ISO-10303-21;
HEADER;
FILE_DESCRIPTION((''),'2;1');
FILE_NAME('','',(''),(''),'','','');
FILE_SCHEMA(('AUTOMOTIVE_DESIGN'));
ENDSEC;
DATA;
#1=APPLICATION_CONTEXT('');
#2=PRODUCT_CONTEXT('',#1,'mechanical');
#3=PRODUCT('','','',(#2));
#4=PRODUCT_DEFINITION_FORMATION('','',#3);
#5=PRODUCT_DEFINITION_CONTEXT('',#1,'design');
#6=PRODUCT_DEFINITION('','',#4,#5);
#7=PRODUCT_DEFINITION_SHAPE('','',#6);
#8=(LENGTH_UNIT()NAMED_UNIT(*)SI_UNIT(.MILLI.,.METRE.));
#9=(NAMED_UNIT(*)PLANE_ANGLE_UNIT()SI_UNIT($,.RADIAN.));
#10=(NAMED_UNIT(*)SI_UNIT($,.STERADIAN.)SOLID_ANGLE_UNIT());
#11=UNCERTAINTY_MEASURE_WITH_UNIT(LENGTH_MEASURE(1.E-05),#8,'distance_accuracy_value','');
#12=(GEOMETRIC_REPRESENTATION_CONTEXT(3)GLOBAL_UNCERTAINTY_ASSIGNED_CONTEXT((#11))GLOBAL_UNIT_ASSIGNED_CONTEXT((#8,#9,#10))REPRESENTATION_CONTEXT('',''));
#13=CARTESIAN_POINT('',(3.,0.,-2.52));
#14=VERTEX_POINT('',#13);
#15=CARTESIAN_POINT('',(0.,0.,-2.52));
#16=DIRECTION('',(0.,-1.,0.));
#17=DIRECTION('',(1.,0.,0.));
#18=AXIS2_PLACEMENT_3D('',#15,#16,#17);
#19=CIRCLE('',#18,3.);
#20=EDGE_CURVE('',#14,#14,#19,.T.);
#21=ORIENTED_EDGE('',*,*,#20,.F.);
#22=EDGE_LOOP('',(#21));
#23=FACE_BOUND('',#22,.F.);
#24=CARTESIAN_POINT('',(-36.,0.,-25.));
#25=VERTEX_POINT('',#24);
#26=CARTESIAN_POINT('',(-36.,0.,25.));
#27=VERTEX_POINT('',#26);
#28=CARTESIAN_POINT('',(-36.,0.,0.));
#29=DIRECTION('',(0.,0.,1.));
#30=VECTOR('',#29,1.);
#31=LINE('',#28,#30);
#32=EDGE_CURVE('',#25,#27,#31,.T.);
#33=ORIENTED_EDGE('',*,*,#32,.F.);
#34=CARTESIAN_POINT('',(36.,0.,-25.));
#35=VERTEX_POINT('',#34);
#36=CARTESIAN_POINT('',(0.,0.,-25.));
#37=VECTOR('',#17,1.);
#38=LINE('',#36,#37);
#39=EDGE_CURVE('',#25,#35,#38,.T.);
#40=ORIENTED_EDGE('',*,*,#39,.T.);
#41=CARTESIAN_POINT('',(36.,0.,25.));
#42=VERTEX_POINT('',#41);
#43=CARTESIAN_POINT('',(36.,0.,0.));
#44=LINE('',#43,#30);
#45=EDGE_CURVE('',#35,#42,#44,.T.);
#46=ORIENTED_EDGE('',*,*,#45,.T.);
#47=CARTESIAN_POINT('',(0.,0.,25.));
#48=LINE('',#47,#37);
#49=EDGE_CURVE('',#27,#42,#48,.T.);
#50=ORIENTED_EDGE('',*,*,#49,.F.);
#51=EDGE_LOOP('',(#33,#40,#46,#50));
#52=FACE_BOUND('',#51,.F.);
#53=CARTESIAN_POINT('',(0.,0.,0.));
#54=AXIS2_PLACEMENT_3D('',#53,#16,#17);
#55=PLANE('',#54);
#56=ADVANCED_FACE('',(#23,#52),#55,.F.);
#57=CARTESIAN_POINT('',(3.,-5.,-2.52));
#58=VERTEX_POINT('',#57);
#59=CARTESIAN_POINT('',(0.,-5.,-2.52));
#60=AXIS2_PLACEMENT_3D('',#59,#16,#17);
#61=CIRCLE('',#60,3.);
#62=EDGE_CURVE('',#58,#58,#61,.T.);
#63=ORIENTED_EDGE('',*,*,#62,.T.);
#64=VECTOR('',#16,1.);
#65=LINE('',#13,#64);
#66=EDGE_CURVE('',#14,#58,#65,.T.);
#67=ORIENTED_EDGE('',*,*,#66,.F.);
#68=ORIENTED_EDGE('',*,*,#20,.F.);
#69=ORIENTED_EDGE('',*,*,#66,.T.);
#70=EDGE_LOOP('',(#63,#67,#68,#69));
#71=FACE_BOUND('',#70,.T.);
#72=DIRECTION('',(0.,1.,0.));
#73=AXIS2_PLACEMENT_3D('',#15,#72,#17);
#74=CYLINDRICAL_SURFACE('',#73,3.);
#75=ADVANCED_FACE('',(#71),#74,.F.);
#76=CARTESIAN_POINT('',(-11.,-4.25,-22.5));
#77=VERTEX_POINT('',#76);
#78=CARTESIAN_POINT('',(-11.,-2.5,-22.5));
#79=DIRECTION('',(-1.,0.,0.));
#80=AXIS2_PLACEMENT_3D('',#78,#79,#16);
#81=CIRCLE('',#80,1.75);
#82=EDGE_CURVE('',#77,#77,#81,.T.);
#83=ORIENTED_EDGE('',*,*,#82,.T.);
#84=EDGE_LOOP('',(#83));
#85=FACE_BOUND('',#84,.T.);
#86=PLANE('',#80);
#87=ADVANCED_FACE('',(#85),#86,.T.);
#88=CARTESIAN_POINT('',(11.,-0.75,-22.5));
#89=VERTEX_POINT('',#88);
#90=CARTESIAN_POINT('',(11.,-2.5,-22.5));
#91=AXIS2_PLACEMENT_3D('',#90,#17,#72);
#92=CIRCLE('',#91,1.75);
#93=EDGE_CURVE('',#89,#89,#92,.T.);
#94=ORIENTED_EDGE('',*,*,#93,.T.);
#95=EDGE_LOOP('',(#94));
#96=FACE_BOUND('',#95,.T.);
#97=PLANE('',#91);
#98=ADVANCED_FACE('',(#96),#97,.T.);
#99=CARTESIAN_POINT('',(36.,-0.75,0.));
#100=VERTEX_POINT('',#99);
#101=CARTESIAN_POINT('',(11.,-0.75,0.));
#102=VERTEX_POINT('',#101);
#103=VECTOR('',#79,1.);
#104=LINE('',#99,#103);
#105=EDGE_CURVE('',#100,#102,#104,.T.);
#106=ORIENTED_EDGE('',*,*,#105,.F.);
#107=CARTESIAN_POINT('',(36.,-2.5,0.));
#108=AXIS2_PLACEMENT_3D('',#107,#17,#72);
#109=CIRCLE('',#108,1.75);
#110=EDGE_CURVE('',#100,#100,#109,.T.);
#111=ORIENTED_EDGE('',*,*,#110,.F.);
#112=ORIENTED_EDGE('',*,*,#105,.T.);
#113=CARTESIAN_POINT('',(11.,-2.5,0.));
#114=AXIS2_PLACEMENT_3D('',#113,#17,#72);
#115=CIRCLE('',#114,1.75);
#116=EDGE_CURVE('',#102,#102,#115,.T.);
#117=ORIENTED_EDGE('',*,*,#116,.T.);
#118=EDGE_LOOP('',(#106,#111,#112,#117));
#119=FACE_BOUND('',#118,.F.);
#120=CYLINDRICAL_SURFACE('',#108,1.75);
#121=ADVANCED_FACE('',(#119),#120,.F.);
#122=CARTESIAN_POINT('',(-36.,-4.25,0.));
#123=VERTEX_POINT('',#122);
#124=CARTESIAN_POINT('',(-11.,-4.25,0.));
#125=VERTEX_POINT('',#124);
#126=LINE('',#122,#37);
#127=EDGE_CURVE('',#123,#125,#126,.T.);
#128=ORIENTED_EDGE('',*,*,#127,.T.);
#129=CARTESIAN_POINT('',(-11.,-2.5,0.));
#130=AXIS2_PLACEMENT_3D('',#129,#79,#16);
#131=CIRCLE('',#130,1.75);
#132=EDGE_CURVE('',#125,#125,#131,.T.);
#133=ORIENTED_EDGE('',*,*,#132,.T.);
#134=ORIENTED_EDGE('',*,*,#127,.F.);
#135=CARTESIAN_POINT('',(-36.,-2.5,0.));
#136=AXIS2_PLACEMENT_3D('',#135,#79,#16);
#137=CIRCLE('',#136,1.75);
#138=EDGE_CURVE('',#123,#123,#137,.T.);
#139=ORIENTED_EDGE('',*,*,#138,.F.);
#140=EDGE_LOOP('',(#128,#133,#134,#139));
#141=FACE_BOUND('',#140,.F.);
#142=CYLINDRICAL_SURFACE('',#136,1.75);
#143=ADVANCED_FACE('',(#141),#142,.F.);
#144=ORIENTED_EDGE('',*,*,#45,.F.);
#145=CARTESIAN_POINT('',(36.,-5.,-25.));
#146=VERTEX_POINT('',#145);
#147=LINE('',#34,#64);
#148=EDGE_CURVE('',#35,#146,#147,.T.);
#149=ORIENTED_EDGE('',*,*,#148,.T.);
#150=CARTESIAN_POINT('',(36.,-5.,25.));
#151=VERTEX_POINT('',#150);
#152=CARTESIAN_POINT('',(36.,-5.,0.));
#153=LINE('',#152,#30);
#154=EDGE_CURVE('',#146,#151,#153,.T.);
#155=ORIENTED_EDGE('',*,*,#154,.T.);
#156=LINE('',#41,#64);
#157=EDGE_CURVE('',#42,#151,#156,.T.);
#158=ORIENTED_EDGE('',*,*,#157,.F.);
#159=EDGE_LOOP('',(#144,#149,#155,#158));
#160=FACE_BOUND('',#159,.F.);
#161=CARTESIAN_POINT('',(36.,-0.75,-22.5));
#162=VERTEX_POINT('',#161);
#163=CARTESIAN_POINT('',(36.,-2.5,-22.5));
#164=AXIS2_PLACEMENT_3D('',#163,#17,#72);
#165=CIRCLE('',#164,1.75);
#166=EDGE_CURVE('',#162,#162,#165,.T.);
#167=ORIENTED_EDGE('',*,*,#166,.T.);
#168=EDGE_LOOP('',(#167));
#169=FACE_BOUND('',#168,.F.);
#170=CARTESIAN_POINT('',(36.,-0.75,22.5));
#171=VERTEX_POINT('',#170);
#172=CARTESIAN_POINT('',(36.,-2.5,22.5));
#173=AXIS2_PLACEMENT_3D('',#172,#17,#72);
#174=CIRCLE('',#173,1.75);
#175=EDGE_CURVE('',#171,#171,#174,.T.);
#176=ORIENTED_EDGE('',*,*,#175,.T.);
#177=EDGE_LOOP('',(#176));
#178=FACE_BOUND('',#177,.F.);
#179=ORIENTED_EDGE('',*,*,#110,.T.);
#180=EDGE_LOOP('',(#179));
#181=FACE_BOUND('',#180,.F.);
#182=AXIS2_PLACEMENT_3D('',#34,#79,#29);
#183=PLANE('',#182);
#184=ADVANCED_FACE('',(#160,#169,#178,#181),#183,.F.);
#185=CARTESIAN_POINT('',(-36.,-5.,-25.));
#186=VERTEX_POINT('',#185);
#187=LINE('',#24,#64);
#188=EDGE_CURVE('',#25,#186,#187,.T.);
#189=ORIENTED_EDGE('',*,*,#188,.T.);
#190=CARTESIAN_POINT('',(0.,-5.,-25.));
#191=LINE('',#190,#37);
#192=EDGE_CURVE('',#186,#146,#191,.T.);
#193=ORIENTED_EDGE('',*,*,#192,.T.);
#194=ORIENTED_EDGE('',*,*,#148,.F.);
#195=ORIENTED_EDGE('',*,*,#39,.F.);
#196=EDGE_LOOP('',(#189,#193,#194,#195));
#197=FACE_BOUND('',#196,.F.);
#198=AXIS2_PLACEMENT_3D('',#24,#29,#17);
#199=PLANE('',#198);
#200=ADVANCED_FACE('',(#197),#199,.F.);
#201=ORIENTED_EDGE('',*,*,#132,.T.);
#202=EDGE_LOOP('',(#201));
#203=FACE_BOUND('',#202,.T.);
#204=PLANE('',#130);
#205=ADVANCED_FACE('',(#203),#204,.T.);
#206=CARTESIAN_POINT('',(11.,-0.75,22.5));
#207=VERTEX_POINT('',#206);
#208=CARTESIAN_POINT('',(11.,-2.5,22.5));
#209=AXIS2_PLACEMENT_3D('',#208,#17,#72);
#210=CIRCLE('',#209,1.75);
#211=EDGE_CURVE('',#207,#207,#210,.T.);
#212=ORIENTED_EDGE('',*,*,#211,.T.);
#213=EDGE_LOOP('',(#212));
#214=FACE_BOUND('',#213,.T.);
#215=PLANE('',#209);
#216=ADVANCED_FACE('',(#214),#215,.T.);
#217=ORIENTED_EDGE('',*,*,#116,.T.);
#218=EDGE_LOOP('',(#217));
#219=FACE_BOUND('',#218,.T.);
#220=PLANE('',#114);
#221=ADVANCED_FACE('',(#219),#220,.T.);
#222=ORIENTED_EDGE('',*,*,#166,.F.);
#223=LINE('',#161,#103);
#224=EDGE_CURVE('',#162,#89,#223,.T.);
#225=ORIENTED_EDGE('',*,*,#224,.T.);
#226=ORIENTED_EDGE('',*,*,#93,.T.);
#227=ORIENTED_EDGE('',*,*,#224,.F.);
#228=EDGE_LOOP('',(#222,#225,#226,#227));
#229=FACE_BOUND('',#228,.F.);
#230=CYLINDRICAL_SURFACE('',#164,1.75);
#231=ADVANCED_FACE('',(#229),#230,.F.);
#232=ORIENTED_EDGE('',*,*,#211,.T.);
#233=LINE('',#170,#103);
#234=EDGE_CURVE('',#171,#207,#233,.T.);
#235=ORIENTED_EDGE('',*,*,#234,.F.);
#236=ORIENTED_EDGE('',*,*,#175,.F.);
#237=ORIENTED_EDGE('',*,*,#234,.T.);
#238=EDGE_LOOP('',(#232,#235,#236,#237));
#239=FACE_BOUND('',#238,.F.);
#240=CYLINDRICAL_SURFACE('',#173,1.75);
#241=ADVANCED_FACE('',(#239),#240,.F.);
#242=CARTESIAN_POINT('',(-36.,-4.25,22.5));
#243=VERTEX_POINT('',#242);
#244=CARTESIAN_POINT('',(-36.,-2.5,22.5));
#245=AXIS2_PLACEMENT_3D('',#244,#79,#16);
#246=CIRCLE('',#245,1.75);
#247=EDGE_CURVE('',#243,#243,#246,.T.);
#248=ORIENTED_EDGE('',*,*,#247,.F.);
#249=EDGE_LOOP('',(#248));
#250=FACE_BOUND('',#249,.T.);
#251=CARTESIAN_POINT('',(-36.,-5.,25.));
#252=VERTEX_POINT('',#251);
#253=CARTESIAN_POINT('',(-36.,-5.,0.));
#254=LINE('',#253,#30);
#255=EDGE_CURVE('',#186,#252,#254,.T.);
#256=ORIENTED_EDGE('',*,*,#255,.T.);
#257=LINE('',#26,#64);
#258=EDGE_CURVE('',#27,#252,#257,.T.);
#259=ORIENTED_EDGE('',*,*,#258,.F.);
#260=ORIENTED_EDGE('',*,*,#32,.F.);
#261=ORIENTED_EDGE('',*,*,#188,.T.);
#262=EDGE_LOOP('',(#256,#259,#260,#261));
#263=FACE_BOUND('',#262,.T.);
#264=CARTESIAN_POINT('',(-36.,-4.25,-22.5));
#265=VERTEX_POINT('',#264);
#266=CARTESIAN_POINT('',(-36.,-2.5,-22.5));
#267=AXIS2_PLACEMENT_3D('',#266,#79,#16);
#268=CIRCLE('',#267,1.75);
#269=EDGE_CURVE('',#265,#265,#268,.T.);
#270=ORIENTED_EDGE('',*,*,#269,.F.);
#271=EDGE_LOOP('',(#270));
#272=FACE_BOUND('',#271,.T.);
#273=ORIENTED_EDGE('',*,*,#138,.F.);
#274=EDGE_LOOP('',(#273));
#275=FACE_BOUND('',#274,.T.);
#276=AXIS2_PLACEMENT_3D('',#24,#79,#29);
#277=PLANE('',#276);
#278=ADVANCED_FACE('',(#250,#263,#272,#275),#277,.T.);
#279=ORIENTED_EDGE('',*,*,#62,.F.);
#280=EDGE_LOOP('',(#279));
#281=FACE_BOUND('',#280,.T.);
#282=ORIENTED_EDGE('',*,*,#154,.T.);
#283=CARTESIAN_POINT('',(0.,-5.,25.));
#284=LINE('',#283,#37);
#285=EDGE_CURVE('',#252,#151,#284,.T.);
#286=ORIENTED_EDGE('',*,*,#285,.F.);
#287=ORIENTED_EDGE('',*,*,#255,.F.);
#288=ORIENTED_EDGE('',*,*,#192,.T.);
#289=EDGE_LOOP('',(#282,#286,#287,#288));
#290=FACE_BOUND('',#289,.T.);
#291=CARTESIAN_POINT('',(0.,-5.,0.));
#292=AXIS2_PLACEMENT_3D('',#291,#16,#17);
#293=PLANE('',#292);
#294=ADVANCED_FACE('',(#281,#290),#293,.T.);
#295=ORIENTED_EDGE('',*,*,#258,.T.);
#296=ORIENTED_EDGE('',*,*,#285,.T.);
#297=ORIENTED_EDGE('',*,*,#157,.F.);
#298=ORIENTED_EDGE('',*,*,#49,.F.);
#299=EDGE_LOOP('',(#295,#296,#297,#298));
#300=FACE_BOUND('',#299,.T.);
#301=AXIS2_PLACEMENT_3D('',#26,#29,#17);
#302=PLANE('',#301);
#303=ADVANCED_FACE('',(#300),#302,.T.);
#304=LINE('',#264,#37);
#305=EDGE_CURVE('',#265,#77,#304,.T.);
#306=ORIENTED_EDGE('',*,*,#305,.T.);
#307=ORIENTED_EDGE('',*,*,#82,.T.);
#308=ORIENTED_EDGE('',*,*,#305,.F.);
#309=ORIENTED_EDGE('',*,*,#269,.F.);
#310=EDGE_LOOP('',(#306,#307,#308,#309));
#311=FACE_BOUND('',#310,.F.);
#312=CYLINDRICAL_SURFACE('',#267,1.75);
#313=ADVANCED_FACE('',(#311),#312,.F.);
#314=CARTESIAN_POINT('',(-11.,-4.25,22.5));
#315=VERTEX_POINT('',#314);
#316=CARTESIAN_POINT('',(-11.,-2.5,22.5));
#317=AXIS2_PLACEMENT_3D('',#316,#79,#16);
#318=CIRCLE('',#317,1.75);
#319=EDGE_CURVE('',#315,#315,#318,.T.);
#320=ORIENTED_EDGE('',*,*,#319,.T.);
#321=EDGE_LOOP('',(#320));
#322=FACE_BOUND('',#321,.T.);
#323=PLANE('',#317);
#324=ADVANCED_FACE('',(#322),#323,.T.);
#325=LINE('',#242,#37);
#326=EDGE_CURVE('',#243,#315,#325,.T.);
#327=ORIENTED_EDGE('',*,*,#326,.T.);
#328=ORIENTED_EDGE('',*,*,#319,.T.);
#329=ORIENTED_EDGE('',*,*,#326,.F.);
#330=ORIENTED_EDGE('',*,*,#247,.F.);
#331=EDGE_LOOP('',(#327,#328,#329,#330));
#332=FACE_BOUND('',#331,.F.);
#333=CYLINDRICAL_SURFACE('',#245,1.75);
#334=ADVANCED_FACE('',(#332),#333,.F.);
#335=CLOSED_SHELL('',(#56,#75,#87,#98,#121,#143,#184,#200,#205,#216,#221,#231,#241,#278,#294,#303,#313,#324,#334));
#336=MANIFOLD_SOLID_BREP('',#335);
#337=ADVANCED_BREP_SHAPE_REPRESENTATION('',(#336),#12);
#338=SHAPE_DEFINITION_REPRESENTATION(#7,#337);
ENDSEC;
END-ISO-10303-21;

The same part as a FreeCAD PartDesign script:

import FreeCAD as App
import Part
import Sketcher
Q = App.Units.Quantity

doc = App.newDocument("Part")
body = doc.addObject("PartDesign::Body", "Body")

# Sketch on XZ plane
sketch1 = doc.addObject("Sketcher::SketchObject", "Sketch")
body.addObject(sketch1)
sketch1.AttachmentSupport = (doc.XZ_Plane, [""])
sketch1.MapMode = "FlatFace"
sketch1.addGeometry(Part.LineSegment(App.Vector(-36, 25, 0), App.Vector(-36, -25, 0)), False)
sketch1.addGeometry(Part.LineSegment(App.Vector(-36, -25, 0), App.Vector(36, -25, 0)), False)
sketch1.addGeometry(Part.LineSegment(App.Vector(36, -25, 0), App.Vector(36, 25, 0)), False)
sketch1.addGeometry(Part.LineSegment(App.Vector(36, 25, 0), App.Vector(-36, 25, 0)), False)
sketch1.addGeometry(Part.Circle(App.Vector(0, -2.5, 0), App.Vector(0, 0, 1), 3), False)
sketch1.addConstraint(Sketcher.Constraint("Coincident", 0, 2, 1, 1))
sketch1.addConstraint(Sketcher.Constraint("Coincident", 1, 2, 2, 1))
sketch1.addConstraint(Sketcher.Constraint("Coincident", 2, 2, 3, 1))
sketch1.addConstraint(Sketcher.Constraint("Coincident", 3, 2, 0, 1))
sketch1.addConstraint(Sketcher.Constraint("Vertical", 0))
sketch1.addConstraint(Sketcher.Constraint("Horizontal", 1))
sketch1.addConstraint(Sketcher.Constraint("Vertical", 2))
sketch1.addConstraint(Sketcher.Constraint("Horizontal", 3))
sketch1.addConstraint(Sketcher.Constraint("Symmetric", 0, 2, 2, 2, -1, 1))
sketch1.addConstraint(Sketcher.Constraint("PointOnObject", 4, 3, -2))
sketch1.addConstraint(Sketcher.Constraint("Diameter", 4, Q("6 mm")))
sketch1.addConstraint(Sketcher.Constraint("DistanceX", 1, 1, 1, 2, Q("72 mm")))
sketch1.addConstraint(Sketcher.Constraint("DistanceY", 0, 2, 0, 1, Q("50 mm")))
sketch1.addConstraint(Sketcher.Constraint("DistanceY", 4, 3, -1, 1, Q("2.52 mm")))
pad1 = doc.addObject("PartDesign::Pad", "Pad")
body.addObject(pad1)
pad1.Profile = sketch1
pad1.Length = 5

# Sketch on YZ plane
sketch2 = doc.addObject("Sketcher::SketchObject", "Sketch001")
body.addObject(sketch2)
sketch2.AttachmentSupport = (doc.YZ_Plane, [""])
sketch2.MapMode = "FlatFace"
sketch2.AttachmentOffset = App.Placement(App.Vector(0, 0, -36), App.Rotation())
sketch2.addGeometry(Part.Circle(App.Vector(-2.5, 22.5, 0), App.Vector(0, 0, 1), 1.8), False)
sketch2.addGeometry(Part.Circle(App.Vector(-2.5, -22.5, 0), App.Vector(0, 0, 1), 1.8), False)
sketch2.addGeometry(Part.Circle(App.Vector(-2.5, 0, 0), App.Vector(0, 0, 1), 1.8), False)
sketch2.addConstraint(Sketcher.Constraint("Equal", 0, 1))
sketch2.addConstraint(Sketcher.Constraint("Equal", 1, 2))
sketch2.addConstraint(Sketcher.Constraint("Symmetric", 0, 3, 1, 3, -1))
sketch2.addConstraint(Sketcher.Constraint("PointOnObject", 2, 3, -1))
sketch2.addConstraint(Sketcher.Constraint("Vertical", 1, 3, 2, 3))
sketch2.addConstraint(Sketcher.Constraint("Diameter", 0, Q("3.5 mm")))
sketch2.addConstraint(Sketcher.Constraint("DistanceY", 1, 3, 0, 3, Q("45 mm")))
sketch2.addConstraint(Sketcher.Constraint("DistanceX", 0, 3, -1, 1, Q("2.5 mm")))
pocket1 = doc.addObject("PartDesign::Pocket", "Pocket")
body.addObject(pocket1)
pocket1.Profile = sketch2
pocket1.Length = 25
pocket1.Reversed = True

# Sketch on YZ plane
sketch3 = doc.addObject("Sketcher::SketchObject", "Sketch002")
body.addObject(sketch3)
sketch3.AttachmentSupport = (doc.YZ_Plane, [""])
sketch3.MapMode = "FlatFace"
sketch3.AttachmentOffset = App.Placement(App.Vector(0, 0, 36), App.Rotation())
sketch3.addGeometry(Part.Circle(App.Vector(-2.5, 0, 0), App.Vector(0, 0, 1), 1.8), False)
sketch3.addGeometry(Part.Circle(App.Vector(-2.5, 22.5, 0), App.Vector(0, 0, 1), 1.8), False)
sketch3.addGeometry(Part.Circle(App.Vector(-2.5, -22.5, 0), App.Vector(0, 0, 1), 1.8), False)
sketch3.addConstraint(Sketcher.Constraint("Equal", 0, 1))
sketch3.addConstraint(Sketcher.Constraint("Equal", 1, 2))
sketch3.addConstraint(Sketcher.Constraint("Symmetric", 1, 3, 2, 3, -1))
sketch3.addConstraint(Sketcher.Constraint("PointOnObject", 0, 3, -1))
sketch3.addConstraint(Sketcher.Constraint("Vertical", 0, 3, 1, 3))
sketch3.addConstraint(Sketcher.Constraint("Diameter", 0, Q("3.5 mm")))
sketch3.addConstraint(Sketcher.Constraint("DistanceY", 2, 3, 1, 3, Q("45 mm")))
sketch3.addConstraint(Sketcher.Constraint("DistanceX", 0, 3, -1, 1, Q("2.5 mm")))
pocket2 = doc.addObject("PartDesign::Pocket", "Pocket001")
body.addObject(pocket2)
pocket2.Profile = sketch3
pocket2.Length = 25

doc.recompute()
